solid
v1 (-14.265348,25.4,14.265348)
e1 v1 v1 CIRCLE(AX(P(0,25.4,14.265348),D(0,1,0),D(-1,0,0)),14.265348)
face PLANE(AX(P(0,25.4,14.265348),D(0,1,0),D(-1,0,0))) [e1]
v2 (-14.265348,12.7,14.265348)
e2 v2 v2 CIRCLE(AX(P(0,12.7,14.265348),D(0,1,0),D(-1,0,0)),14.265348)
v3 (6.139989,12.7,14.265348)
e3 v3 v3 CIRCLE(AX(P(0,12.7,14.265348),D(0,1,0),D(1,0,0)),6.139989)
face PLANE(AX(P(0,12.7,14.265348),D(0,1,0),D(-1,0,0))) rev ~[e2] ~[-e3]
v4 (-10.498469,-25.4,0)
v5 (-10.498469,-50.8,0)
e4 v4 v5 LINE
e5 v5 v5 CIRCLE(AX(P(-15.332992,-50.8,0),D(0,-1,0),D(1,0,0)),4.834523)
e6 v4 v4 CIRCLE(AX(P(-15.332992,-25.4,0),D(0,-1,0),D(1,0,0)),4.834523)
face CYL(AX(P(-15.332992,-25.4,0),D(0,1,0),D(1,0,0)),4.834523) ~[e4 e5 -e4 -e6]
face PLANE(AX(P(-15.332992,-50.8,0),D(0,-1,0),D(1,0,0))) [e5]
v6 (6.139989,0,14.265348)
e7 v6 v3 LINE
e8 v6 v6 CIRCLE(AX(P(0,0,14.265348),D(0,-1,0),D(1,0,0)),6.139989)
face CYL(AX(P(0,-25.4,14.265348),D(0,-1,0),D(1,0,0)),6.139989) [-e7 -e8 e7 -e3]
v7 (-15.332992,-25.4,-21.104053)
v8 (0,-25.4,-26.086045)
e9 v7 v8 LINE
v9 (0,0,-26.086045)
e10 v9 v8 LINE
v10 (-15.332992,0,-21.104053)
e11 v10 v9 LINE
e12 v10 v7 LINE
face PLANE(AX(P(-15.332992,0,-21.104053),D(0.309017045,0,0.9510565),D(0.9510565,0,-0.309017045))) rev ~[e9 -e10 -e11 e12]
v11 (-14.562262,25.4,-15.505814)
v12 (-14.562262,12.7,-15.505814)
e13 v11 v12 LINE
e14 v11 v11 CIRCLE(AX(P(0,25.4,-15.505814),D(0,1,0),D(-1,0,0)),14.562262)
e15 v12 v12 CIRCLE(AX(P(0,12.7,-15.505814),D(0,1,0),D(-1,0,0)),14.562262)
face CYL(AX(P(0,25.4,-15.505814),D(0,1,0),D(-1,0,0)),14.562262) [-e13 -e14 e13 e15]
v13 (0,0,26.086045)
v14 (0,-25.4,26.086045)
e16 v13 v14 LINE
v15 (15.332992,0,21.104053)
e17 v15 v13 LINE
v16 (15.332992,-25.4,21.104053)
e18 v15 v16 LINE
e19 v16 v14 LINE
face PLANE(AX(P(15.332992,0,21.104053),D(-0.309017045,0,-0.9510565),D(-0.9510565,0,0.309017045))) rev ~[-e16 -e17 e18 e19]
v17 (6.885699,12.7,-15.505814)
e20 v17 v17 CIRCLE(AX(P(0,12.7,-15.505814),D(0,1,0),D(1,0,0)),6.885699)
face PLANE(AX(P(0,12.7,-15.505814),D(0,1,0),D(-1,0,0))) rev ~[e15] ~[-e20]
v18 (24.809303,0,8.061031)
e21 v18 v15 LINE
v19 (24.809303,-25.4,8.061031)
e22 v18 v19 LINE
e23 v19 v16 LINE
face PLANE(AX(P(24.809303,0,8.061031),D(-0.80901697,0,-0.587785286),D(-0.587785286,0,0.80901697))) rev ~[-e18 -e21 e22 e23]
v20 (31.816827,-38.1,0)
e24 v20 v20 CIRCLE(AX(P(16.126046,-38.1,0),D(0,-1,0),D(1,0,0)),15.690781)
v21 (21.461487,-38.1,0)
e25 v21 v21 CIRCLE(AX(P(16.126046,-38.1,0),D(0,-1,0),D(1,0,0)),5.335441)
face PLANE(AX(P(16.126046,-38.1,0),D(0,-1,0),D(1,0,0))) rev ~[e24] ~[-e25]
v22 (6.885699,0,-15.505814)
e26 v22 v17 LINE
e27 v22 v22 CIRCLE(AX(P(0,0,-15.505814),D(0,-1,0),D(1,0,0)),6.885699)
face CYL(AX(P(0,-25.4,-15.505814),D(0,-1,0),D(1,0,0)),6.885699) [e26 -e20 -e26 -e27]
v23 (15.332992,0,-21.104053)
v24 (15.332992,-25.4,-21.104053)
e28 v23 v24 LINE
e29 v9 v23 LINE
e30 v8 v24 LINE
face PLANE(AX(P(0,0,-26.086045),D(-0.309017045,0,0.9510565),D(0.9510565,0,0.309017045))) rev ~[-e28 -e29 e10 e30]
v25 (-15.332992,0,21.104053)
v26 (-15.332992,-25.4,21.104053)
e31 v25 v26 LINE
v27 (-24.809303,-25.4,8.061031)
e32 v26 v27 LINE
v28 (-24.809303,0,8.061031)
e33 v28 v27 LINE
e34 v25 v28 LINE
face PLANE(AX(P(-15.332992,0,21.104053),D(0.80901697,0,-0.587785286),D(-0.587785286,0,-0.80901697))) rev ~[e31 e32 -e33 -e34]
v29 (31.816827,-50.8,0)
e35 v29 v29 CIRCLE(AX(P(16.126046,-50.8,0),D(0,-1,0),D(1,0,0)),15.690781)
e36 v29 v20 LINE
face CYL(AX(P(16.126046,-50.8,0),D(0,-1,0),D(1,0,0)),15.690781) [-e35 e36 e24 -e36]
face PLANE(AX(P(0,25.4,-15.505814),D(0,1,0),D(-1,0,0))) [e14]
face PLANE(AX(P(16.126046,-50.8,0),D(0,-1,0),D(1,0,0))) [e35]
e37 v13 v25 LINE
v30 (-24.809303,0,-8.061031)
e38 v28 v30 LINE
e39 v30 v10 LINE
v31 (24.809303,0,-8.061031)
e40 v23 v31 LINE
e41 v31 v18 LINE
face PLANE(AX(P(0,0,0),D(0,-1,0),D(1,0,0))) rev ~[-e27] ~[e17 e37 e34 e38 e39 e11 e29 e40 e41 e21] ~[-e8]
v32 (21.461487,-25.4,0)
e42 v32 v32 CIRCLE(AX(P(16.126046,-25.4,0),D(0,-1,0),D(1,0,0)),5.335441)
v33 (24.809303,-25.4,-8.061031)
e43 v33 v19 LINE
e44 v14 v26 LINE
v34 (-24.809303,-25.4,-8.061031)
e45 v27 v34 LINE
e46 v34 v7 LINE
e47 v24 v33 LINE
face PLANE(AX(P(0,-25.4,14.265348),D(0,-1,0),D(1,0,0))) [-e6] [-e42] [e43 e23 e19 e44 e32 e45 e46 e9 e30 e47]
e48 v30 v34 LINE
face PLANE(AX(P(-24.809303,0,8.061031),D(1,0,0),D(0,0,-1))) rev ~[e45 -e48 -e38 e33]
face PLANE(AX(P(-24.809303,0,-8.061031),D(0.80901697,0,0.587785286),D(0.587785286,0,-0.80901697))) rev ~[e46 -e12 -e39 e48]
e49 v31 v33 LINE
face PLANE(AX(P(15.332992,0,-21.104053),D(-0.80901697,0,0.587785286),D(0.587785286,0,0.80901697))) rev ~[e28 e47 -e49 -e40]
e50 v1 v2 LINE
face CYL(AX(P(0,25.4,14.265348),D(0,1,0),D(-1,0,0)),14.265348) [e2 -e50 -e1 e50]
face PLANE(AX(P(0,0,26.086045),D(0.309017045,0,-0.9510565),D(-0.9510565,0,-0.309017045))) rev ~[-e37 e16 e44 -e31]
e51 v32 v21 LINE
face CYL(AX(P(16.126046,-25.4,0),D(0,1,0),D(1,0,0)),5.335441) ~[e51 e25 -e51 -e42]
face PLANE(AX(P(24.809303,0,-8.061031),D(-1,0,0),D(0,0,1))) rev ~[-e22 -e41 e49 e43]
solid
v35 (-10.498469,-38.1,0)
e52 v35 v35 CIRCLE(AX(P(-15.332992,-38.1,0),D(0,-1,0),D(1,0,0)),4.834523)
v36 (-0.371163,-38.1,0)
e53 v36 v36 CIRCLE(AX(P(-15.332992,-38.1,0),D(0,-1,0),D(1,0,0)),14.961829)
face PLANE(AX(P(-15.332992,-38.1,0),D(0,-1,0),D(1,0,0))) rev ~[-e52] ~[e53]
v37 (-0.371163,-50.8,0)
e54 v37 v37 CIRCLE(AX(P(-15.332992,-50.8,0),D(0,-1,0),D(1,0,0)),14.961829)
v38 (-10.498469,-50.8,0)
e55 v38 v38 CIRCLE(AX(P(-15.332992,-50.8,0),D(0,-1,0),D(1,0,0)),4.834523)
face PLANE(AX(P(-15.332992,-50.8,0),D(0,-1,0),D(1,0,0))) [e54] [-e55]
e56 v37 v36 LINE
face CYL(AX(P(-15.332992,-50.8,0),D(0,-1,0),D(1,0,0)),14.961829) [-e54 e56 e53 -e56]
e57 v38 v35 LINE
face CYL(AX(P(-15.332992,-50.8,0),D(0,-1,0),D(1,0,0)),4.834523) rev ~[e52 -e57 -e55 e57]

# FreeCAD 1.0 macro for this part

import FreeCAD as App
import Part
import Sketcher
Q = App.Units.Quantity


def add_polygon(sketch, points):
    """Adds a closed chain of lines whose ends are joined by coincident constraints."""
    first, n = sketch.GeometryCount, len(points)
    for a, b in zip(points, points[1:] + points[:1]):
        sketch.addGeometry(Part.LineSegment(App.Vector(*a, 0), App.Vector(*b, 0)), False)
    for i in range(n):
        sketch.addConstraint(Sketcher.Constraint("Coincident", first + i, 2, first + (i + 1) % n, 1))

doc = App.newDocument("Part")
body = doc.addObject("PartDesign::Body", "Body")

sketch1 = body.newObject("Sketcher::SketchObject", "Sketch")
sketch1.AttachmentSupport = (doc.getObject("XZ_Plane"), [""])
sketch1.MapMode = "FlatFace"
add_polygon(sketch1, [(-25, 8), (-25, -8), (-15, -21), (0, -26), (15, -21), (25, -8), (25, 8), (15, 21), (0, 26), (-15, 21)])
sketch1.addConstraint([
    Sketcher.Constraint("Vertical", 0),
    Sketcher.Constraint("Vertical", 5),
    Sketcher.Constraint("Symmetric", 0, 2, 5, 2, -1, 1),
    Sketcher.Constraint("Symmetric", 1, 2, 6, 2, -1, 1),
    Sketcher.Constraint("Symmetric", 2, 2, 7, 2, -1, 1),
    Sketcher.Constraint("Symmetric", 3, 2, 8, 2, -1, 1),
    Sketcher.Constraint("Symmetric", 1, 2, 3, 2, -2),
    Sketcher.Constraint("PointOnObject", 2, 2, -2),
    Sketcher.Constraint("Parallel", 4, 9),
    Sketcher.Constraint("Horizontal", 0, 2, 4, 2),
    Sketcher.Constraint("Equal", 1, 2),
    Sketcher.Constraint("Angle", 1, Q("-53.999998 deg")),
    Sketcher.Constraint("Angle", 2, Q("-18.000003 deg")),
    Sketcher.Constraint("DistanceY", 0, 2, 0, 1, Q("16.122062 mm")),
    Sketcher.Constraint("DistanceX", 0, 2, 1, 2, Q("9.476311 mm")),
])
pad1 = body.newObject("PartDesign::Pad", "Pad")
pad1.Profile = sketch1
pad1.Length = Q("1 in")

sketch2 = body.newObject("Sketcher::SketchObject", "Sketch001")
sketch2.AttachmentSupport = (doc.getObject("XZ_Plane"), [""])
sketch2.MapMode = "FlatFace"
sketch2.AttachmentOffset = App.Placement(App.Vector(0, 0, 1 * 25.4), App.Rotation())
sketch2.addGeometry([
    Part.Circle(App.Vector(-15.3, 0, 0), App.Vector(0, 0, 1), 4.8),
    Part.Circle(App.Vector(16.1, 0, 0), App.Vector(0, 0, 1), 5.3),
], False)
sketch2.addConstraint([
    Sketcher.Constraint("PointOnObject", 0, 3, -1),
    Sketcher.Constraint("PointOnObject", 1, 3, -1),
    Sketcher.Constraint("Diameter", 0, Q("9.669046 mm")),
    Sketcher.Constraint("Diameter", 1, Q("10.670882 mm")),
    Sketcher.Constraint("DistanceX", 0, 3, -1, 1, Q("15.332992 mm")),
    Sketcher.Constraint("DistanceX", -1, 1, 1, 3, Q("16.126046 mm")),
])
pad2 = body.newObject("PartDesign::Pad", "Pad001")
pad2.Profile = sketch2
pad2.Length = Q("1 in")

sketch3 = body.newObject("Sketcher::SketchObject", "Sketch002")
sketch3.AttachmentSupport = (doc.getObject("XZ_Plane"), [""])
sketch3.MapMode = "FlatFace"
sketch3.AttachmentOffset = App.Placement(App.Vector(0, 0, 1 * 25.4), App.Rotation())
sketch3.addGeometry([
    Part.Circle(App.Vector(0, 14, 0), App.Vector(0, 0, 1), 6),
    Part.Circle(App.Vector(0, -16, 0), App.Vector(0, 0, 1), 7),
], False)
sketch3.addConstraint([
    Sketcher.Constraint("PointOnObject", 0, 3, -2),
    Sketcher.Constraint("PointOnObject", 1, 3, -2),
    Sketcher.Constraint("Diameter", 0, Q("12.279978 mm")),
    Sketcher.Constraint("Diameter", 1, Q("13.771398 mm")),
    Sketcher.Constraint("DistanceY", -1, 1, 0, 3, Q("14.265348 mm")),
    Sketcher.Constraint("DistanceY", 1, 3, -1, 1, Q("15.505814 mm")),
])
pad3 = body.newObject("PartDesign::Pad", "Pad002")
pad3.Profile = sketch3
pad3.Length = Q("2 in")
pad3.Reversed = True

sketch4 = body.newObject("Sketcher::SketchObject", "Sketch003")
sketch4.AttachmentSupport = (doc.getObject("XZ_Plane"), [""])
sketch4.MapMode = "FlatFace"
sketch4.AttachmentOffset = App.Placement(App.Vector(0, 0, 2 * 25.4), App.Rotation())
sketch4.addGeometry([
    Part.Circle(App.Vector(16, 0, 0), App.Vector(0, 0, 1), 16),
    Part.Circle(App.Vector(16, 0, 0), App.Vector(0, 0, 1), 5),
], False)
sketch4.addConstraint([
    Sketcher.Constraint("Coincident", 1, 3, 0, 3),
    Sketcher.Constraint("PointOnObject", 0, 3, -1),
    Sketcher.Constraint("Diameter", 0, Q("31.381562 mm")),
    Sketcher.Constraint("Diameter", 1, Q("10.670882 mm")),
    Sketcher.Constraint("DistanceX", -1, 1, 0, 3, Q("16.126046 mm")),
])
pad4 = body.newObject("PartDesign::Pad", "Pad003")
pad4.Profile = sketch4
pad4.Length = Q("0.5 in")
pad4.Reversed = True

sketch5 = body.newObject("Sketcher::SketchObject", "Sketch004")
sketch5.AttachmentSupport = (doc.getObject("XZ_Plane"), [""])
sketch5.MapMode = "FlatFace"
sketch5.AttachmentOffset = App.Placement(App.Vector(0, 0, -1 * 25.4), App.Rotation())
sketch5.addGeometry([
    Part.Circle(App.Vector(0, 14, 0), App.Vector(0, 0, 1), 14),
    Part.Circle(App.Vector(0, 14, 0), App.Vector(0, 0, 1), 6),
], False)
sketch5.addConstraint([
    Sketcher.Constraint("Coincident", 1, 3, 0, 3),
    Sketcher.Constraint("PointOnObject", 0, 3, -2),
    Sketcher.Constraint("Diameter", 0, Q("28.530696 mm")),
    Sketcher.Constraint("Diameter", 1, Q("12.279978 mm")),
    Sketcher.Constraint("DistanceY", -1, 1, 0, 3, Q("14.265348 mm")),
])
pad5 = body.newObject("PartDesign::Pad", "Pad004")
pad5.Profile = sketch5
pad5.Length = Q("0.5 in")

sketch6 = body.newObject("Sketcher::SketchObject", "Sketch005")
sketch6.AttachmentSupport = (doc.getObject("XZ_Plane"), [""])
sketch6.MapMode = "FlatFace"
sketch6.AttachmentOffset = App.Placement(App.Vector(0, 0, -1 * 25.4), App.Rotation())
sketch6.addGeometry([
    Part.Circle(App.Vector(0, -16, 0), App.Vector(0, 0, 1), 15),
    Part.Circle(App.Vector(0, -16, 0), App.Vector(0, 0, 1), 7),
], False)
sketch6.addConstraint([
    Sketcher.Constraint("Coincident", 1, 3, 0, 3),
    Sketcher.Constraint("PointOnObject", 0, 3, -2),
    Sketcher.Constraint("Diameter", 0, Q("29.124524 mm")),
    Sketcher.Constraint("Diameter", 1, Q("13.771398 mm")),
    Sketcher.Constraint("DistanceY", 0, 3, -1, 1, Q("15.505814 mm")),
])
pad6 = body.newObject("PartDesign::Pad", "Pad005")
pad6.Profile = sketch6
pad6.Length = Q("0.5 in")
body2 = doc.addObject("PartDesign::Body", "Body001")

sketch7 = body2.newObject("Sketcher::SketchObject", "Sketch006")
sketch7.AttachmentSupport = (doc.getObject("XZ_Plane001"), [""])
sketch7.MapMode = "FlatFace"
sketch7.AttachmentOffset = App.Placement(App.Vector(0, 0, 2 * 25.4), App.Rotation())
sketch7.addGeometry([
    Part.Circle(App.Vector(-15.3, 0, 0), App.Vector(0, 0, 1), 15),
    Part.Circle(App.Vector(-15.3, 0, 0), App.Vector(0, 0, 1), 4.8),
], False)
sketch7.addConstraint([
    Sketcher.Constraint("Coincident", 1, 3, 0, 3),
    Sketcher.Constraint("PointOnObject", 0, 3, -1),
    Sketcher.Constraint("Diameter", 0, Q("29.923658 mm")),
    Sketcher.Constraint("Diameter", 1, Q("9.669046 mm")),
    Sketcher.Constraint("DistanceX", 0, 3, -1, 1, Q("15.332992 mm")),
])
pad7 = body2.newObject("PartDesign::Pad", "Pad006")
pad7.Profile = sketch7
pad7.Length = Q("0.5 in")
pad7.Reversed = True

doc.recompute()
